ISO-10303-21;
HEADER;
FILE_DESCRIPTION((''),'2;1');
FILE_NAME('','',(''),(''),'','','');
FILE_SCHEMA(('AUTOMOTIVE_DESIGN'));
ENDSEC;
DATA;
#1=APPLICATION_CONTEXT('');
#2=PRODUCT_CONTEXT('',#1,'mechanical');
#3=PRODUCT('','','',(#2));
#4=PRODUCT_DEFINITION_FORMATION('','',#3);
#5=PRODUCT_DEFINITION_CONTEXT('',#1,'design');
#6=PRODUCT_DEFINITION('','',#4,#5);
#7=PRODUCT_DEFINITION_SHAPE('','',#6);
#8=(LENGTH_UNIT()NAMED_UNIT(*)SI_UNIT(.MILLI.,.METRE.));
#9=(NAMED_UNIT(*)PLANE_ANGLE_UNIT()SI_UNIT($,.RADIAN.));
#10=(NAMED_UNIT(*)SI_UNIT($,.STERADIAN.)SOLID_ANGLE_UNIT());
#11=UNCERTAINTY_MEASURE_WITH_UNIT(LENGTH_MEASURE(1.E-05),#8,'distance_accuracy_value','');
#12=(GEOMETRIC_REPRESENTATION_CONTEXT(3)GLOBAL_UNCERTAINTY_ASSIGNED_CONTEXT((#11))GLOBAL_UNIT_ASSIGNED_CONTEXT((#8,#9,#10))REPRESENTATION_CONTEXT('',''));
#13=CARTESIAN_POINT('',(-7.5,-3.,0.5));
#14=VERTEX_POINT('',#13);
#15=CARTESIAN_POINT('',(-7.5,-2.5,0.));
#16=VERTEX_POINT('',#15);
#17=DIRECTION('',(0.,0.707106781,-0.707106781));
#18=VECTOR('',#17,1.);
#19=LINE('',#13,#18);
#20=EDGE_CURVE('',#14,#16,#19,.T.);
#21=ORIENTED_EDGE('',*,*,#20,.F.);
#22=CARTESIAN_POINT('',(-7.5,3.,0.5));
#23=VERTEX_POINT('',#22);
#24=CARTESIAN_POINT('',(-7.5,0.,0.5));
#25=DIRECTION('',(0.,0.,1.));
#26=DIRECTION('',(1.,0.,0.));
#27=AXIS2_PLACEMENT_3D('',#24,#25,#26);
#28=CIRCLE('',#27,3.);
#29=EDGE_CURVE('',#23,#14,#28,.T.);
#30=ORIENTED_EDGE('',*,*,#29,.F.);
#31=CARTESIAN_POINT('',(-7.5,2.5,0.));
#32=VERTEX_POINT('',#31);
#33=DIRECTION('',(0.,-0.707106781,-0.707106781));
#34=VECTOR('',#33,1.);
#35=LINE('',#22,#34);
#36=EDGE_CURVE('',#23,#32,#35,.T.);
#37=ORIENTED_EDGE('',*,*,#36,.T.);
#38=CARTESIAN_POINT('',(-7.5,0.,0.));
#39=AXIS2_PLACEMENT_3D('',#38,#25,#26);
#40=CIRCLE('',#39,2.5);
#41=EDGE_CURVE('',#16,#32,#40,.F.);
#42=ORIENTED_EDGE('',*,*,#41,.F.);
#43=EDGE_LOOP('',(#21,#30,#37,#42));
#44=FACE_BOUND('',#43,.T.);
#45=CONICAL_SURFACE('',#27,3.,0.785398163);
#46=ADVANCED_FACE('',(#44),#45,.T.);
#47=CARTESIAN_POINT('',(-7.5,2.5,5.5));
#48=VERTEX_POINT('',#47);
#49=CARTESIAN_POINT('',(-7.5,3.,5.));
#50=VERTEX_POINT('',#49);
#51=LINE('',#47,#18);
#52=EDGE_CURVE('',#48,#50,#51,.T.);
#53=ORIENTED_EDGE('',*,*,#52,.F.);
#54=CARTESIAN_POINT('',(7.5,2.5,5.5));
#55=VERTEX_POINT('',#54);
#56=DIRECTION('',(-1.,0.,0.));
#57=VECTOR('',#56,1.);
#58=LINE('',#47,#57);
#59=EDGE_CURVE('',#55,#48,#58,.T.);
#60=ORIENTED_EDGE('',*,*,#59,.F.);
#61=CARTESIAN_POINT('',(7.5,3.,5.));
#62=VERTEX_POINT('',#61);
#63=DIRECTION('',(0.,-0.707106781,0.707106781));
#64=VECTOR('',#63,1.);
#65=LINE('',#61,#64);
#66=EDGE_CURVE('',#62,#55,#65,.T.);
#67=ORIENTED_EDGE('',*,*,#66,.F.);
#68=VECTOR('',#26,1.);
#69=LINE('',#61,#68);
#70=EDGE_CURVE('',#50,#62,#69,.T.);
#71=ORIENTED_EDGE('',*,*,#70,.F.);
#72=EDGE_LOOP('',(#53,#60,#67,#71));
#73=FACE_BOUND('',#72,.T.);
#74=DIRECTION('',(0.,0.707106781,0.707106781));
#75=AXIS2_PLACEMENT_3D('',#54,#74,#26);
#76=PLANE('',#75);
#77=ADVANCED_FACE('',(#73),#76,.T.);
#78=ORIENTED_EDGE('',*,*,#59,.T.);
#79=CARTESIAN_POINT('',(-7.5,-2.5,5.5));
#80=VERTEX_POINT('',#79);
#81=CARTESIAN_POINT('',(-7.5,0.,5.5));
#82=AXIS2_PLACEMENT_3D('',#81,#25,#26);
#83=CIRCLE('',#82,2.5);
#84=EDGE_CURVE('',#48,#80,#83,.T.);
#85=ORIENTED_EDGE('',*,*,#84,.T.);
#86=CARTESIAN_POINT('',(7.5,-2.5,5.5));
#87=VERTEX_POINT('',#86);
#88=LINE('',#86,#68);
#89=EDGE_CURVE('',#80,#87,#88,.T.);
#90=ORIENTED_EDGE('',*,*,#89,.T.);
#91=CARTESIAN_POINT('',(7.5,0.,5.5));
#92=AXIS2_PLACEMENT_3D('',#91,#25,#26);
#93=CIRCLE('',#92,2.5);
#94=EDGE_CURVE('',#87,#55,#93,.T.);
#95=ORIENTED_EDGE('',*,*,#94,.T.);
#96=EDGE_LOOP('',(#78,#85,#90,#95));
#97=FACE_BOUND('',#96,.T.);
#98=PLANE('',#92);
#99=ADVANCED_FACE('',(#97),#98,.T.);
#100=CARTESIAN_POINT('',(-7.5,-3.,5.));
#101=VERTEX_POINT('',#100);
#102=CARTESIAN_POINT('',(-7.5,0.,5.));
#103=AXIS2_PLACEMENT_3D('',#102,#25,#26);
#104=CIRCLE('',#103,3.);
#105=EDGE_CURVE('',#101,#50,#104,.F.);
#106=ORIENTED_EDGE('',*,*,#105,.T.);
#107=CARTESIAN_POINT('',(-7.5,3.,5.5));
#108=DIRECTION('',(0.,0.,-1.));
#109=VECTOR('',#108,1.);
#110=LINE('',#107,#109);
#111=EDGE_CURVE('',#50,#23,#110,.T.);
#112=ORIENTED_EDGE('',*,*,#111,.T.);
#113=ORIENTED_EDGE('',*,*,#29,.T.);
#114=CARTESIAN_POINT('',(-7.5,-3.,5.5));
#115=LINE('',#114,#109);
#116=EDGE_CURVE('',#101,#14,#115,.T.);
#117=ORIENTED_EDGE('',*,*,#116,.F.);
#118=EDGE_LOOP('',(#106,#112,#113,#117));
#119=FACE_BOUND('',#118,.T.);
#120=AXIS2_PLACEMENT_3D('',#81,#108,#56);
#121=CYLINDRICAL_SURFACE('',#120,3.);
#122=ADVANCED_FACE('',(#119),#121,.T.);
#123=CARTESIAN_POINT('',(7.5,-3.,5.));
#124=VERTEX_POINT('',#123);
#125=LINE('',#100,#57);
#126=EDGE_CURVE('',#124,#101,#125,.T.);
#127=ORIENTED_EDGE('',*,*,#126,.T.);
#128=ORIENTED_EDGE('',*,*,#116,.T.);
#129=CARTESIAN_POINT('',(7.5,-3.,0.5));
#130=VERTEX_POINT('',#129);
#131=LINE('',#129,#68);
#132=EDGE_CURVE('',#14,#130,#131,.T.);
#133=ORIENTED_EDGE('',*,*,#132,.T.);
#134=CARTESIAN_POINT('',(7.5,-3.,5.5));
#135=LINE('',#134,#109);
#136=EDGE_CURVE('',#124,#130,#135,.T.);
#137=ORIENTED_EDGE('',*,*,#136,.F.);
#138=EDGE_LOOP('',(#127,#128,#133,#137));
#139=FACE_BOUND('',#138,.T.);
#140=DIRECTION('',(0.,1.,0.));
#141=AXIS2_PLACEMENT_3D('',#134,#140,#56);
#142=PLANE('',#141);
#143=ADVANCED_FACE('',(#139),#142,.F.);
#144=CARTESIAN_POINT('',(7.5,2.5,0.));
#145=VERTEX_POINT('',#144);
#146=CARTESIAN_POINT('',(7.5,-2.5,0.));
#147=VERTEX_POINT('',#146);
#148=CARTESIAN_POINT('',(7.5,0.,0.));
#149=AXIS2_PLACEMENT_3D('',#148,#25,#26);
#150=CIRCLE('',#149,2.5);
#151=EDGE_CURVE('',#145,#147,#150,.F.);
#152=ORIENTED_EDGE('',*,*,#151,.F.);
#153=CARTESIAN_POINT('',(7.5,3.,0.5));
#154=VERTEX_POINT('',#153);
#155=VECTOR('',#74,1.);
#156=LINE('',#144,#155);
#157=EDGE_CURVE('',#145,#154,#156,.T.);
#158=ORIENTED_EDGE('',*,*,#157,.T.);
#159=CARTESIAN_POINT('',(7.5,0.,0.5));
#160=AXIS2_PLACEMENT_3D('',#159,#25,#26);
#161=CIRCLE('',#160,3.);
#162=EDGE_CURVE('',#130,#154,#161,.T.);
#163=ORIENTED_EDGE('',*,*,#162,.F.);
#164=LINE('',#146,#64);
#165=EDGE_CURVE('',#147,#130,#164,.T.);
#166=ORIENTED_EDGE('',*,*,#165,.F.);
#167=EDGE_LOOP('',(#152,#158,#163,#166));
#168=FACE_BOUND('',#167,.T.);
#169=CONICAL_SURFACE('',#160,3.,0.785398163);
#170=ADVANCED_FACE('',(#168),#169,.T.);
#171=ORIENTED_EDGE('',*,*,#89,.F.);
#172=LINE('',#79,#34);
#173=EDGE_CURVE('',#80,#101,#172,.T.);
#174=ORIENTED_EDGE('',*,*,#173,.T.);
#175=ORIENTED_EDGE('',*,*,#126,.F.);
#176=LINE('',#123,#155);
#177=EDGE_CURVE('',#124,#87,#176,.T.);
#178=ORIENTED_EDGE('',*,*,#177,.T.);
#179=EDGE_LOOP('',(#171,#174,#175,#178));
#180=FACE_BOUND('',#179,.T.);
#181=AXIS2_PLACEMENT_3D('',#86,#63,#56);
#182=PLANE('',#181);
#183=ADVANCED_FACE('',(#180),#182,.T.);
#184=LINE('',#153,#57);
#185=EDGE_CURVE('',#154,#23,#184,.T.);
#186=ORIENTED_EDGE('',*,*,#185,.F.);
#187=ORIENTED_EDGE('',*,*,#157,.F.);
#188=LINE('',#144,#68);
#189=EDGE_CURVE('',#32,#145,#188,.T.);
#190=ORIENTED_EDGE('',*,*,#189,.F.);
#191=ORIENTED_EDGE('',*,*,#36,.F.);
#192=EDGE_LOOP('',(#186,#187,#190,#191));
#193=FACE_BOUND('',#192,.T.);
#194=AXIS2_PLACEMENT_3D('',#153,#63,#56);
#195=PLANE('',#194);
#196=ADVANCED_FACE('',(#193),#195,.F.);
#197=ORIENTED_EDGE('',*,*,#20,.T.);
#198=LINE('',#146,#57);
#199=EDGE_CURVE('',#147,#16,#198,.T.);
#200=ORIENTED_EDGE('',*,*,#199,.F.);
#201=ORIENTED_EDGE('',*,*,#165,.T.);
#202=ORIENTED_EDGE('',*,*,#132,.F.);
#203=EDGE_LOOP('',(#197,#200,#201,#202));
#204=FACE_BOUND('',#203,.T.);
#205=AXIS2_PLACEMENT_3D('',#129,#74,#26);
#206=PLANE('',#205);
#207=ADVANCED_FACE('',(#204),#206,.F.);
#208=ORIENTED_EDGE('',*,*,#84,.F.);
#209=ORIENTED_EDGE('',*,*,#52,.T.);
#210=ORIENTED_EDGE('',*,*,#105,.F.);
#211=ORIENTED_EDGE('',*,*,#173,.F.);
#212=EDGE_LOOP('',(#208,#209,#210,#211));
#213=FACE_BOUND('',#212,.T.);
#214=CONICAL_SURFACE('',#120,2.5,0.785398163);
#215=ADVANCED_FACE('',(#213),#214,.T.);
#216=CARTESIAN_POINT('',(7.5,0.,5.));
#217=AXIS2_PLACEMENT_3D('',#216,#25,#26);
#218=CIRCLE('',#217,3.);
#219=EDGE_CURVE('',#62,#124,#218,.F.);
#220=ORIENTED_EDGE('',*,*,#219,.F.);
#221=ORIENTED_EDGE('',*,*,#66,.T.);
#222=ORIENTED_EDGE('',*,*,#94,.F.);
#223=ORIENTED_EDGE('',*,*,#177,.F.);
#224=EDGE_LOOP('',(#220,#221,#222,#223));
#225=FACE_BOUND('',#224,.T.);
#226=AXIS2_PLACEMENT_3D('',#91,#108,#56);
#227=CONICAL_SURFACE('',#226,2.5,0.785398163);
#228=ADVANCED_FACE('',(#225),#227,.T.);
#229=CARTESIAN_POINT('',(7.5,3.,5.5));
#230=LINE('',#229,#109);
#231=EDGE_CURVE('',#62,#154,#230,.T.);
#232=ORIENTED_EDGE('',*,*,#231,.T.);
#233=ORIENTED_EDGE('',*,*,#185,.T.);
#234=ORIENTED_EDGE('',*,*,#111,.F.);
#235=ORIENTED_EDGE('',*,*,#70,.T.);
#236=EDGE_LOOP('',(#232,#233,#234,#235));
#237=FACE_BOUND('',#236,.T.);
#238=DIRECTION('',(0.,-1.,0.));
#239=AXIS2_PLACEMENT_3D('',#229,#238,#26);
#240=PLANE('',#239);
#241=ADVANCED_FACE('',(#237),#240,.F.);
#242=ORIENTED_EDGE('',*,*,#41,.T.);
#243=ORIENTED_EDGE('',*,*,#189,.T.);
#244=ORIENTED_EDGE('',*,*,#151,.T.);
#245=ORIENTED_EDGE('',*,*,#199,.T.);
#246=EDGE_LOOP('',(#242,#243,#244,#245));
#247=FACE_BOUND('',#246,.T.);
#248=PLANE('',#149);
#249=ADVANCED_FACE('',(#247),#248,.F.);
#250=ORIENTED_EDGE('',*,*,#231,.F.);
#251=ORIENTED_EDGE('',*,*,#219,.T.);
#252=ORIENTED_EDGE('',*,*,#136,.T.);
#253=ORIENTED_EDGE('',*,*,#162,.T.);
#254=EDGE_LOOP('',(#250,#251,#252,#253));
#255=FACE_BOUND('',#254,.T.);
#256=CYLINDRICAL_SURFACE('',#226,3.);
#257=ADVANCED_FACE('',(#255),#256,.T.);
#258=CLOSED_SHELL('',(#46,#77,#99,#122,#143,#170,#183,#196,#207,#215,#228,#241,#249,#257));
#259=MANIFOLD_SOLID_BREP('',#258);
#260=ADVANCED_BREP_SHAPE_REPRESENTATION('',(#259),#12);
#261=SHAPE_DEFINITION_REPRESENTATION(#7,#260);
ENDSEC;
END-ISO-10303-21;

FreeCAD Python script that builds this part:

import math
import FreeCAD as App
import Part
import Sketcher
from FreeCAD import Vector
Q = App.Units.Quantity


def edges_at(feature, points):
    """Names of the edges that pass closest to the given points."""
    edges = feature.Shape.Edges
    near = lambda p: min(range(len(edges)), key=lambda i: edges[i].distToShape(Part.Vertex(*p))[0])
    return sorted({f"Edge{near(p) + 1}" for p in points})

doc = App.newDocument("Part")
body = doc.addObject("PartDesign::Body", "Body")

# Sketch on XY plane
sketch1 = doc.addObject("Sketcher::SketchObject", "Sketch")
body.addObject(sketch1)
sketch1.AttachmentSupport = (doc.XY_Plane, [""])
sketch1.MapMode = "FlatFace"
sketch1.addGeometry([
    Part.LineSegment(Vector(-7.5, -3, 0), Vector(7.5, -3, 0)),
    Part.ArcOfCircle(Part.Circle(Vector(7.5, 0, 0), Vector(0, 0, 1), 3), math.radians(-90), math.radians(90)),
    Part.LineSegment(Vector(7.5, 3, 0), Vector(-7.5, 3, 0)),
    Part.ArcOfCircle(Part.Circle(Vector(-7.5, 0, 0), Vector(0, 0, 1), 3), math.radians(90), math.radians(270)),
], False)
sketch1.addConstraint([
    Sketcher.Constraint("Tangent", 0, 2, 1, 1),
    Sketcher.Constraint("Tangent", 1, 2, 2, 1),
    Sketcher.Constraint("Tangent", 2, 2, 3, 1),
    Sketcher.Constraint("Tangent", 3, 2, 0, 1),
    Sketcher.Constraint("Horizontal", 0),
    Sketcher.Constraint("Horizontal", 2),
    Sketcher.Constraint("Symmetric", 1, 3, 3, 3, -1, 1),
    Sketcher.Constraint("Radius", 1, Q("3 mm")),
    Sketcher.Constraint("DistanceX", 0, 1, 0, 2, Q("15 mm")),
])
pad1 = doc.addObject("PartDesign::Pad", "Pad")
body.addObject(pad1)
pad1.Profile = sketch1
pad1.Length = 5.5
doc.recompute()

chamfer = doc.addObject("PartDesign::Chamfer", "Chamfer")
body.addObject(chamfer)
chamfer.Base = (pad1, edges_at(pad1, [
    (-10.5, 0, 5.5),
    (0, -3, 5.5),
    (10.5, 0, 5.5),
    (0, -3, 0),
    (-10.5, 0, 0),
    (0, 3, 0),
    (10.5, 0, 0),
    (0, 3, 5.5),
]))
chamfer.Size = 0.5

doc.recompute()
